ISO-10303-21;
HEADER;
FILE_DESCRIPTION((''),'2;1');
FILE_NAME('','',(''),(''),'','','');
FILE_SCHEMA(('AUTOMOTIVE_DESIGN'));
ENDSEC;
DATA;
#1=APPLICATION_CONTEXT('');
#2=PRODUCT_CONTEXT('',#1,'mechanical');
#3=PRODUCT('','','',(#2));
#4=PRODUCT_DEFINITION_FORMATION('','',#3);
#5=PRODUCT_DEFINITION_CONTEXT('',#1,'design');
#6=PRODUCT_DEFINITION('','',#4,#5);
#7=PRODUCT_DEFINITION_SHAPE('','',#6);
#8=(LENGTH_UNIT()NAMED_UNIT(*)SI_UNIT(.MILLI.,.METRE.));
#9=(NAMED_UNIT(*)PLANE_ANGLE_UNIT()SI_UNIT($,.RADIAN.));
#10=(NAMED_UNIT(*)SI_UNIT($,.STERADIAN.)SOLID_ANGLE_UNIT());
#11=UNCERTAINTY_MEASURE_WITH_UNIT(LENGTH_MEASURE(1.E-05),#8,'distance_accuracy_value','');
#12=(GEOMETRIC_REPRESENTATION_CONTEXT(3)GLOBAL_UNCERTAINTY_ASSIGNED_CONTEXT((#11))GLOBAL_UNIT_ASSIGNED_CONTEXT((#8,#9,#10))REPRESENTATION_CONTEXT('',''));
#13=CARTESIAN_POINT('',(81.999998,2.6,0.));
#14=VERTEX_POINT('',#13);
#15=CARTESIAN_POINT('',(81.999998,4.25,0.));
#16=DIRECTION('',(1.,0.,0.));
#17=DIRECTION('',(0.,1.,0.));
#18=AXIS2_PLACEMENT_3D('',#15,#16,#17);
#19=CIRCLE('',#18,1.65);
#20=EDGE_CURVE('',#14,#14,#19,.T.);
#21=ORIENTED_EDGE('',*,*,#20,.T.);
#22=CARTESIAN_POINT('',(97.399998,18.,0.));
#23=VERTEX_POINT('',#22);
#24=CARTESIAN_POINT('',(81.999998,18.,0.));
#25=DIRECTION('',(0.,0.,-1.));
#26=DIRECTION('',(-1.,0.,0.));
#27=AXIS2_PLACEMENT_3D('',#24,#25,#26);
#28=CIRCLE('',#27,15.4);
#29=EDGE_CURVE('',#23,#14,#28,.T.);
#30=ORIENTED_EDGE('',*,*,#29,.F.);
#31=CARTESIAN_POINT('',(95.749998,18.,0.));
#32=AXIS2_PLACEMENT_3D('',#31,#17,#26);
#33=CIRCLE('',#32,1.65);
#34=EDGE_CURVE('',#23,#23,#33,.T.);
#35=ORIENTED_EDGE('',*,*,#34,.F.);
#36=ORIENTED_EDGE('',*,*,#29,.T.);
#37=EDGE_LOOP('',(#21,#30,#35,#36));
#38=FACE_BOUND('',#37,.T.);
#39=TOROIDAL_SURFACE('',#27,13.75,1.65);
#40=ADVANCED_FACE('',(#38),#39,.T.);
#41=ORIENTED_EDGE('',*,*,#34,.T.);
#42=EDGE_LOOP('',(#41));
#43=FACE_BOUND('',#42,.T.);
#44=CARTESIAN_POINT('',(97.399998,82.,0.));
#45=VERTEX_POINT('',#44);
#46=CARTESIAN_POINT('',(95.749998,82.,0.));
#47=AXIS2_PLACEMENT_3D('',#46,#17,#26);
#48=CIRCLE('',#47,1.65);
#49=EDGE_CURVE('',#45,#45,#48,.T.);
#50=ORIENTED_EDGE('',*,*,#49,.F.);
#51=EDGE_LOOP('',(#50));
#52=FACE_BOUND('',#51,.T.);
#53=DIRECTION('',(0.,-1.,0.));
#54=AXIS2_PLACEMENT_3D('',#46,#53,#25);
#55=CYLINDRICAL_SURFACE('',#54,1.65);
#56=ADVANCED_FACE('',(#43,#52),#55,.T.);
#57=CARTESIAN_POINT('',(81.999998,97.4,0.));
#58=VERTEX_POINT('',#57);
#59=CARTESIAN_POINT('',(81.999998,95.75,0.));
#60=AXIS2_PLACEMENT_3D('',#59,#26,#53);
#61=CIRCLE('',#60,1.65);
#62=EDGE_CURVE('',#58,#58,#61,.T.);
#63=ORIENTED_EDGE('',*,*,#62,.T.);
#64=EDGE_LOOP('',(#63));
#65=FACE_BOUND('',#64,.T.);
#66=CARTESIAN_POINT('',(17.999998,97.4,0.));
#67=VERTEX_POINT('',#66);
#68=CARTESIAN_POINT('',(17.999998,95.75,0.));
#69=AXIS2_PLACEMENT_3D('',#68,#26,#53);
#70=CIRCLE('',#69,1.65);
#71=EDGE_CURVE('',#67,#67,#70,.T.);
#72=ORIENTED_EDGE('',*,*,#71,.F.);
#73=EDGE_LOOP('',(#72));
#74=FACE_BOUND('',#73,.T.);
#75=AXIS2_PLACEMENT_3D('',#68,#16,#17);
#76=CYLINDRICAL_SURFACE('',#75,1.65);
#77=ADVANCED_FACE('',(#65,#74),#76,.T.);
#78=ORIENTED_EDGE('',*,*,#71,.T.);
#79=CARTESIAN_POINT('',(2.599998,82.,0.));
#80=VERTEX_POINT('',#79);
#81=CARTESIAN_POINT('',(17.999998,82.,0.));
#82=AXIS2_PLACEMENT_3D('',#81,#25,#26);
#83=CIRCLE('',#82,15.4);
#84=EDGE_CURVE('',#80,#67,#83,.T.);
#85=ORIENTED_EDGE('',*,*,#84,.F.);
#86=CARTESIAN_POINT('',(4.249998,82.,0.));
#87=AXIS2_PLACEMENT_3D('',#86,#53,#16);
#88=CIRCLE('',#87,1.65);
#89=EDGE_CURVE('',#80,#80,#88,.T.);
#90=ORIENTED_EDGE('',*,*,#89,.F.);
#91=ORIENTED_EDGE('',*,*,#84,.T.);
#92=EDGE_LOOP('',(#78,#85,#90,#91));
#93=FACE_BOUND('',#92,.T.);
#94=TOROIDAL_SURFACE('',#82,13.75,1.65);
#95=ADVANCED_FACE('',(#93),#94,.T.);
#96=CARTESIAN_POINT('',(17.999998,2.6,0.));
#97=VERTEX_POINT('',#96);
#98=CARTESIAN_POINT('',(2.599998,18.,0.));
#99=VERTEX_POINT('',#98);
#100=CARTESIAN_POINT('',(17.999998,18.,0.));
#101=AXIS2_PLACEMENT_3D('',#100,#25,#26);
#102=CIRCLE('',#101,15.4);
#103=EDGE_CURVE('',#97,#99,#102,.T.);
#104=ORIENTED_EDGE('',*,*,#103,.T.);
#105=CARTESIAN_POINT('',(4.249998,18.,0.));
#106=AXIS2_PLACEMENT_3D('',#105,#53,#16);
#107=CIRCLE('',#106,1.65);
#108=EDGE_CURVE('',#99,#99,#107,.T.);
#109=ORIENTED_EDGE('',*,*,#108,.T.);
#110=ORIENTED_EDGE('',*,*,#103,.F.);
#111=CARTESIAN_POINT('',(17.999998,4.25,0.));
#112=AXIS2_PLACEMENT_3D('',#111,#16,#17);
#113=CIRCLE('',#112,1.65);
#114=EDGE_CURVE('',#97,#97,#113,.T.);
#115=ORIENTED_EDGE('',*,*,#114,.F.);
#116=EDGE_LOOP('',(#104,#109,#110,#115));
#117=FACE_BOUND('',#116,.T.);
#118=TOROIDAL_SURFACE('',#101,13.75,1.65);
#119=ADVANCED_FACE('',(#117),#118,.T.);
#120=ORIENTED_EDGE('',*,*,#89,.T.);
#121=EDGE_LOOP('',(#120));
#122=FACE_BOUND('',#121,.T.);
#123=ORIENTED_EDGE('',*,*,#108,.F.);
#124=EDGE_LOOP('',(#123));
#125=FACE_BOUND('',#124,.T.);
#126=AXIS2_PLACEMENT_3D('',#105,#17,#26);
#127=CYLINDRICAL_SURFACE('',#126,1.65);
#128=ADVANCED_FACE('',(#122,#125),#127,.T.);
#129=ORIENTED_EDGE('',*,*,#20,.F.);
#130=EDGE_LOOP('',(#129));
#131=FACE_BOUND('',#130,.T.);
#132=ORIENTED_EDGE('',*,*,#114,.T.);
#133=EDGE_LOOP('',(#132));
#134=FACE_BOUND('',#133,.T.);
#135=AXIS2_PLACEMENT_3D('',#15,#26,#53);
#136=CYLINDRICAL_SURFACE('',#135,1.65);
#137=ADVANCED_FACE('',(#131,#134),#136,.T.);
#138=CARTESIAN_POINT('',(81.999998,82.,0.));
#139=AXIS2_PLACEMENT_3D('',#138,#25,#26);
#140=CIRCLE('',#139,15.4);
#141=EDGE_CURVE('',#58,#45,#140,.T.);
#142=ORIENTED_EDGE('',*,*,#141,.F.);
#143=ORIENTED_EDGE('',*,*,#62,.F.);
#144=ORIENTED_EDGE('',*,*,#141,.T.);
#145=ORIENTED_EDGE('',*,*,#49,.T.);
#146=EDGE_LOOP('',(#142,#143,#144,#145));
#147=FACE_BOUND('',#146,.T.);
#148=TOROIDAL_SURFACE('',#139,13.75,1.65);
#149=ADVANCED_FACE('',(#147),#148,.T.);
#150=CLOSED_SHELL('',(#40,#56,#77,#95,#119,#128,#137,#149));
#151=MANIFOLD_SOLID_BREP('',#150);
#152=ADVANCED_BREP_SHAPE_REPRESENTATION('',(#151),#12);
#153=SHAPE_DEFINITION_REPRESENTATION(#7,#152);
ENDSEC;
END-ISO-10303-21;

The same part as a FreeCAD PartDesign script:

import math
import FreeCAD as App
import Part
import Sketcher
from FreeCAD import Vector

doc = App.newDocument("Part")
body = doc.addObject("PartDesign::Body", "Body")

# Sketch on XZ plane
sketch1 = body.newObject("Sketcher::SketchObject", "Sketch")
sketch1.AttachmentSupport = (doc.getObject("XZ_Plane"), [""])
sketch1.MapMode = "FlatFace"
sketch1.AttachmentOffset = App.Placement(Vector(0, 0, -82), App.Rotation())
sketch1.addGeometry(Part.Circle(Vector(4.2, 0, 0), Vector(0, 0, 1), 1.6), False)
sketch1.addConstraint([
    Sketcher.Constraint("PointOnObject", 0, 3, -1),
    Sketcher.Constraint("Diameter", 0, 3.3),
    Sketcher.Constraint("DistanceX", -1, 1, 0, 3, 4.249998),
])

# Sketch on XY plane
sketch2 = body.newObject("Sketcher::SketchObject", "Sketch001")
sketch2.AttachmentSupport = (doc.getObject("XY_Plane"), [""])
sketch2.MapMode = "FlatFace"
sketch2.addGeometry([
    Part.LineSegment(Vector(4, 82, 0), Vector(4, 18, 0)),  # 0
    Part.ArcOfCircle(Part.Circle(Vector(18, 18, 0), Vector(0, 0, 1), 14), math.radians(-180), math.radians(-90)),  # 1
    Part.LineSegment(Vector(18, 4, 0), Vector(82, 4, 0)),  # 2
    Part.ArcOfCircle(Part.Circle(Vector(82, 18, 0), Vector(0, 0, 1), 14), math.radians(-90), math.radians(0)),  # 3
    Part.LineSegment(Vector(96, 18, 0), Vector(96, 82, 0)),  # 4
    Part.ArcOfCircle(Part.Circle(Vector(82, 82, 0), Vector(0, 0, 1), 14), math.radians(0), math.radians(90)),  # 5
    Part.LineSegment(Vector(82, 96, 0), Vector(18, 96, 0)),  # 6
    Part.ArcOfCircle(Part.Circle(Vector(18, 82, 0), Vector(0, 0, 1), 14), math.radians(90), math.radians(180)),  # 7
], False)
sketch2.addConstraint([
    Sketcher.Constraint("Tangent", 0, 2, 1, 1),
    Sketcher.Constraint("Tangent", 1, 2, 2, 1),
    Sketcher.Constraint("Tangent", 2, 2, 3, 1),
    Sketcher.Constraint("Tangent", 3, 2, 4, 1),
    Sketcher.Constraint("Tangent", 4, 2, 5, 1),
    Sketcher.Constraint("Tangent", 5, 2, 6, 1),
    Sketcher.Constraint("Tangent", 6, 2, 7, 1),
    Sketcher.Constraint("Tangent", 7, 2, 0, 1),
    Sketcher.Constraint("Vertical", 0),
    Sketcher.Constraint("Horizontal", 2),
    Sketcher.Constraint("Vertical", 4),
    Sketcher.Constraint("Horizontal", 6),
    Sketcher.Constraint("Equal", 1, 3),
    Sketcher.Constraint("Equal", 3, 5),
    Sketcher.Constraint("Equal", 5, 7),
    Sketcher.Constraint("Equal", 6, 0),
    Sketcher.Constraint("DistanceX", 2, 1, 2, 2, 64.0),
    Sketcher.Constraint("Radius", 1, 13.75),
    Sketcher.Constraint("DistanceX", -1, 1, 1, 3, 17.999998),
    Sketcher.Constraint("DistanceY", -1, 1, 1, 3, 18.0),
])
doc.recompute()

additivepipe = body.newObject("PartDesign::AdditivePipe", "AdditivePipe")
additivepipe.Profile = sketch1
additivepipe.Spine = (sketch2, ["Edge1", "Edge2", "Edge3", "Edge4", "Edge5", "Edge6", "Edge7", "Edge8"])

doc.recompute()
